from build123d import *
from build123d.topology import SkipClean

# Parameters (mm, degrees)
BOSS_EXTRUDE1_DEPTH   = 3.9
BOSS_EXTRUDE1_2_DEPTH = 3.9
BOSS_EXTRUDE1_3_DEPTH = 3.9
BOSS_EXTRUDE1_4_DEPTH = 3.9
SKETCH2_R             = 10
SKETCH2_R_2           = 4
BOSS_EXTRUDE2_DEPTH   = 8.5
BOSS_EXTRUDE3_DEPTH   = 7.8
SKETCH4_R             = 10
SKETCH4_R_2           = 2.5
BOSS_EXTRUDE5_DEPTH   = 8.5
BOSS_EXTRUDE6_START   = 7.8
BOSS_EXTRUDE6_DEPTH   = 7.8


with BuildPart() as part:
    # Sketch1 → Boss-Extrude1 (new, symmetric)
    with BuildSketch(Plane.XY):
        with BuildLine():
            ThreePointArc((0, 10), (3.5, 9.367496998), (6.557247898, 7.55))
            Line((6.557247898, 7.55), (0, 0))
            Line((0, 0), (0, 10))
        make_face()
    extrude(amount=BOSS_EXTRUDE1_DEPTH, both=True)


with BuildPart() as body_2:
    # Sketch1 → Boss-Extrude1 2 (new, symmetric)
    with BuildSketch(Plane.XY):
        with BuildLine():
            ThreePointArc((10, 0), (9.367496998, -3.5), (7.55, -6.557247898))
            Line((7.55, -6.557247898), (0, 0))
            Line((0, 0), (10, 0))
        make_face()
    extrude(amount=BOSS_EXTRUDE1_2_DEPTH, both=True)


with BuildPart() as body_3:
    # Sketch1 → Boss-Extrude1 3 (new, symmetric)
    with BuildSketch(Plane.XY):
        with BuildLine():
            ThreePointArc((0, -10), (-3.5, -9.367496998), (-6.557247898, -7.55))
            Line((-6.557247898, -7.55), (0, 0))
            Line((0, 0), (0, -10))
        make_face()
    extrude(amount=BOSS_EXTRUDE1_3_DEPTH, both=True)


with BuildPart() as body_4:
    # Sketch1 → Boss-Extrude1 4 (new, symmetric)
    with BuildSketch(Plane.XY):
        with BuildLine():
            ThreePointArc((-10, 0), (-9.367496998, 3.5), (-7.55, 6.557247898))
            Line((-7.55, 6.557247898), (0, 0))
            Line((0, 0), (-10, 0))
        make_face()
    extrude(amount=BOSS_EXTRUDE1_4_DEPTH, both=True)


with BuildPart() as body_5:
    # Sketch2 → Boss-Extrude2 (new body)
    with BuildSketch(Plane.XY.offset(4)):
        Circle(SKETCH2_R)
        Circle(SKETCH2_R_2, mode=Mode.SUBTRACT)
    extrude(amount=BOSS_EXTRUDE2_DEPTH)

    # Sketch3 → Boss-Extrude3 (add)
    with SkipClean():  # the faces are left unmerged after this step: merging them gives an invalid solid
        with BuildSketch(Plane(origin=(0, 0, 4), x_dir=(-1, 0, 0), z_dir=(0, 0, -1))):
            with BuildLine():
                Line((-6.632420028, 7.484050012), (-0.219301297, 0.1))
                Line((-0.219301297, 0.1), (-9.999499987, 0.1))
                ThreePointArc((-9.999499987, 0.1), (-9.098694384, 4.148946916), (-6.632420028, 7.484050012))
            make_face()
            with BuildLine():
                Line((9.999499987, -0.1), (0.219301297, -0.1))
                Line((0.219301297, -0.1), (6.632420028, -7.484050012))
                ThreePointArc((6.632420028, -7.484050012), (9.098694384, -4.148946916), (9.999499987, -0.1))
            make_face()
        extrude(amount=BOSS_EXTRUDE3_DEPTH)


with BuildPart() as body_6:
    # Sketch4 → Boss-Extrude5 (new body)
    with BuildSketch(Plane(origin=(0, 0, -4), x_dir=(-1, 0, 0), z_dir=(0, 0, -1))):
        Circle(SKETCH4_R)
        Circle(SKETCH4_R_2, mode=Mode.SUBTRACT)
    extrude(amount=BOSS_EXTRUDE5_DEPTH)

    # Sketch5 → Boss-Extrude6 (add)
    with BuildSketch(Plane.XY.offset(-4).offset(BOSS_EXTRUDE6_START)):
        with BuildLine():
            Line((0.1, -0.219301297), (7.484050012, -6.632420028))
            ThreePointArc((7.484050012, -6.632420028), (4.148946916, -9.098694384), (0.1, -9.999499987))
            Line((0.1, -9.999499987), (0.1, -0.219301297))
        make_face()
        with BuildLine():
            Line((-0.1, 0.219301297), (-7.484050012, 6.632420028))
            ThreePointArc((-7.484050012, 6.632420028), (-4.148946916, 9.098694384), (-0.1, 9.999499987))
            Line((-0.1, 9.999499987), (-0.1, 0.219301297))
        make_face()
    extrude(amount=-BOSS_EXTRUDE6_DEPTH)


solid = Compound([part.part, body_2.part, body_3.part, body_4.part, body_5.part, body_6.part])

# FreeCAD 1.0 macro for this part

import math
import FreeCAD as App
import Part
import Sketcher

V = App.Vector

doc = App.newDocument("Part")
body = doc.addObject("PartDesign::Body", "Body")

sketch1 = body.newObject("Sketcher::SketchObject", "Sketch")
sketch1.AttachmentSupport = (doc.getObject("XY_Plane"), [""])
sketch1.MapMode = "FlatFace"
sketch1.addGeometry(Part.ArcOfCircle(Part.Circle(V(0, 0, 0), V(0, 0, 1), 10), math.radians(49), math.radians(90)), False)
sketch1.addGeometry(Part.LineSegment(V(0, 10, 0), V(0, 0, 0)), False)
sketch1.addGeometry(Part.LineSegment(V(0, 0, 0), V(7, 8, 0)), False)
sketch1.addConstraint(Sketcher.Constraint("Coincident", 0, 2, 1, 1))
sketch1.addConstraint(Sketcher.Constraint("Coincident", 1, 2, 2, 1))
sketch1.addConstraint(Sketcher.Constraint("Coincident", 2, 2, 0, 1))
sketch1.addConstraint(Sketcher.Constraint("Vertical", 1))
sketch1.addConstraint(Sketcher.Constraint("Coincident", 0, 3, -1, 1))
sketch1.addConstraint(Sketcher.Constraint("Coincident", 1, 2, -1, 1))
sketch1.addConstraint(Sketcher.Constraint("Radius", 0, 10.0))
sketch1.addConstraint(Sketcher.Constraint("DistanceY", -1, 1, 2, 2, 7.55))
pad1 = body.newObject("PartDesign::Pad", "Pad")
pad1.Profile = sketch1
pad1.Length = 7.8
pad1.Midplane = True
body2 = doc.addObject("PartDesign::Body", "Body001")

sketch2 = body2.newObject("Sketcher::SketchObject", "Sketch001")
sketch2.AttachmentSupport = (doc.getObject("XY_Plane001"), [""])
sketch2.MapMode = "FlatFace"
sketch2.addGeometry(Part.ArcOfCircle(Part.Circle(V(0, 0, 0), V(0, 0, 1), 10), math.radians(-41), math.radians(0)), False)
sketch2.addGeometry(Part.LineSegment(V(10, 0, 0), V(0, 0, 0)), False)
sketch2.addGeometry(Part.LineSegment(V(0, 0, 0), V(8, -7, 0)), False)
sketch2.addConstraint(Sketcher.Constraint("Coincident", 0, 2, 1, 1))
sketch2.addConstraint(Sketcher.Constraint("Coincident", 1, 2, 2, 1))
sketch2.addConstraint(Sketcher.Constraint("Coincident", 2, 2, 0, 1))
sketch2.addConstraint(Sketcher.Constraint("Horizontal", 1))
sketch2.addConstraint(Sketcher.Constraint("Coincident", 0, 3, -1, 1))
sketch2.addConstraint(Sketcher.Constraint("Coincident", 1, 2, -1, 1))
sketch2.addConstraint(Sketcher.Constraint("Radius", 0, 10.0))
sketch2.addConstraint(Sketcher.Constraint("DistanceX", -1, 1, 2, 2, 7.55))
pad2 = body2.newObject("PartDesign::Pad", "Pad001")
pad2.Profile = sketch2
pad2.Length = 7.8
pad2.Midplane = True
body3 = doc.addObject("PartDesign::Body", "Body002")

sketch3 = body3.newObject("Sketcher::SketchObject", "Sketch002")
sketch3.AttachmentSupport = (doc.getObject("XY_Plane002"), [""])
sketch3.MapMode = "FlatFace"
sketch3.addGeometry(Part.ArcOfCircle(Part.Circle(V(0, 0, 0), V(0, 0, 1), 10), math.radians(-131), math.radians(-90)), False)
sketch3.addGeometry(Part.LineSegment(V(0, -10, 0), V(0, 0, 0)), False)
sketch3.addGeometry(Part.LineSegment(V(0, 0, 0), V(-7, -8, 0)), False)
sketch3.addConstraint(Sketcher.Constraint("Coincident", 0, 2, 1, 1))
sketch3.addConstraint(Sketcher.Constraint("Coincident", 1, 2, 2, 1))
sketch3.addConstraint(Sketcher.Constraint("Coincident", 2, 2, 0, 1))
sketch3.addConstraint(Sketcher.Constraint("Vertical", 1))
sketch3.addConstraint(Sketcher.Constraint("Coincident", 0, 3, -1, 1))
sketch3.addConstraint(Sketcher.Constraint("Coincident", 1, 2, -1, 1))
sketch3.addConstraint(Sketcher.Constraint("Radius", 0, 10.0))
sketch3.addConstraint(Sketcher.Constraint("DistanceY", 2, 2, -1, 1, 7.55))
pad3 = body3.newObject("PartDesign::Pad", "Pad002")
pad3.Profile = sketch3
pad3.Length = 7.8
pad3.Midplane = True
body4 = doc.addObject("PartDesign::Body", "Body003")

sketch4 = body4.newObject("Sketcher::SketchObject", "Sketch003")
sketch4.AttachmentSupport = (doc.getObject("XY_Plane003"), [""])
sketch4.MapMode = "FlatFace"
sketch4.addGeometry(Part.ArcOfCircle(Part.Circle(V(0, 0, 0), V(0, 0, 1), 10), math.radians(139), math.radians(180)), False)
sketch4.addGeometry(Part.LineSegment(V(-10, 0, 0), V(0, 0, 0)), False)
sketch4.addGeometry(Part.LineSegment(V(0, 0, 0), V(-8, 7, 0)), False)
sketch4.addConstraint(Sketcher.Constraint("Coincident", 0, 2, 1, 1))
sketch4.addConstraint(Sketcher.Constraint("Coincident", 1, 2, 2, 1))
sketch4.addConstraint(Sketcher.Constraint("Coincident", 2, 2, 0, 1))
sketch4.addConstraint(Sketcher.Constraint("Horizontal", 1))
sketch4.addConstraint(Sketcher.Constraint("Coincident", 0, 3, -1, 1))
sketch4.addConstraint(Sketcher.Constraint("Coincident", 1, 2, -1, 1))
sketch4.addConstraint(Sketcher.Constraint("Radius", 0, 10.0))
sketch4.addConstraint(Sketcher.Constraint("DistanceX", 2, 2, -1, 1, 7.55))
pad4 = body4.newObject("PartDesign::Pad", "Pad003")
pad4.Profile = sketch4
pad4.Length = 7.8
pad4.Midplane = True
body5 = doc.addObject("PartDesign::Body", "Body004")

sketch5 = body5.newObject("Sketcher::SketchObject", "Sketch004")
sketch5.AttachmentSupport = (doc.getObject("XY_Plane004"), [""])
sketch5.MapMode = "FlatFace"
sketch5.AttachmentOffset = App.Placement(V(0, 0, 4), App.Rotation())
sketch5.addGeometry(Part.Circle(V(0, 0, 0), V(0, 0, 1), 10), False)
sketch5.addGeometry(Part.Circle(V(0, 0, 0), V(0, 0, 1), 4), False)
sketch5.addConstraint(Sketcher.Constraint("Coincident", 0, 3, -1, 1))
sketch5.addConstraint(Sketcher.Constraint("Coincident", 1, 3, -1, 1))
sketch5.addConstraint(Sketcher.Constraint("Diameter", 0, 20.0))
sketch5.addConstraint(Sketcher.Constraint("Diameter", 1, 8.0))
pad5 = body5.newObject("PartDesign::Pad", "Pad004")
pad5.Profile = sketch5
pad5.Length = 8.5

sketch6 = body5.newObject("Sketcher::SketchObject", "Sketch005")
sketch6.AttachmentSupport = (doc.getObject("XY_Plane004"), [""])
sketch6.MapMode = "FlatFace"
sketch6.AttachmentOffset = App.Placement(V(0, 0, 4), App.Rotation())
sketch6.addGeometry(Part.LineSegment(V(0, 0, 0), V(7, 7, 0)), False)
sketch6.addGeometry(Part.ArcOfCircle(Part.Circle(V(0, 0, 0), V(0, 0, 1), 10), math.radians(1), math.radians(48)), False)
sketch6.addGeometry(Part.LineSegment(V(10, 0, 0), V(0, 0, 0)), False)
sketch6.addGeometry(Part.LineSegment(V(-10, 0, 0), V(0, 0, 0)), False)
sketch6.addGeometry(Part.LineSegment(V(0, 0, 0), V(-7, -7, 0)), False)
sketch6.addGeometry(Part.ArcOfCircle(Part.Circle(V(0, 0, 0), V(0, 0, 1), 10), math.radians(-179), math.radians(-132)), False)
sketch6.addConstraint(Sketcher.Constraint("Coincident", 0, 2, 1, 2))
sketch6.addConstraint(Sketcher.Constraint("Coincident", 1, 1, 2, 1))
sketch6.addConstraint(Sketcher.Constraint("Coincident", 2, 2, 0, 1))
sketch6.addConstraint(Sketcher.Constraint("Coincident", 3, 2, 4, 1))
sketch6.addConstraint(Sketcher.Constraint("Coincident", 4, 2, 5, 2))
sketch6.addConstraint(Sketcher.Constraint("Coincident", 5, 1, 3, 1))
sketch6.addConstraint(Sketcher.Constraint("Horizontal", 2))
sketch6.addConstraint(Sketcher.Constraint("Horizontal", 3))
sketch6.addConstraint(Sketcher.Constraint("Coincident", 1, 3, -1, 1))
sketch6.addConstraint(Sketcher.Constraint("Coincident", 5, 3, -1, 1))
sketch6.addConstraint(Sketcher.Constraint("Equal", 1, 5))
sketch6.addConstraint(Sketcher.Constraint("Symmetric", 2, 2, 3, 2, -1, 1))
sketch6.addConstraint(Sketcher.Constraint("Parallel", 0, 4))
sketch6.addConstraint(Sketcher.Constraint("Radius", 1, 10.0))
sketch6.addConstraint(Sketcher.Constraint("DistanceY", -1, 1, 1, 1, 0.1))
sketch6.addConstraint(Sketcher.Constraint("DistanceX", 2, 2, 2, 1, 9.780199))
sketch6.addConstraint(Sketcher.Constraint("Distance", 0, 9.780199))
pad6 = body5.newObject("PartDesign::Pad", "Pad005")
pad6.Profile = sketch6
pad6.Length = 7.8
pad6.Reversed = True
body6 = doc.addObject("PartDesign::Body", "Body005")

sketch7 = body6.newObject("Sketcher::SketchObject", "Sketch006")
sketch7.AttachmentSupport = (doc.getObject("XY_Plane005"), [""])
sketch7.MapMode = "FlatFace"
sketch7.AttachmentOffset = App.Placement(V(0, 0, -4), App.Rotation())
sketch7.addGeometry(Part.Circle(V(0, 0, 0), V(0, 0, 1), 10), False)
sketch7.addGeometry(Part.Circle(V(0, 0, 0), V(0, 0, 1), 2.5), False)
sketch7.addConstraint(Sketcher.Constraint("Coincident", 0, 3, -1, 1))
sketch7.addConstraint(Sketcher.Constraint("Coincident", 1, 3, -1, 1))
sketch7.addConstraint(Sketcher.Constraint("Diameter", 0, 20.0))
sketch7.addConstraint(Sketcher.Constraint("Diameter", 1, 5.0))
pad7 = body6.newObject("PartDesign::Pad", "Pad006")
pad7.Profile = sketch7
pad7.Length = 8.5
pad7.Reversed = True

sketch8 = body6.newObject("Sketcher::SketchObject", "Sketch007")
sketch8.AttachmentSupport = (doc.getObject("XY_Plane005"), [""])
sketch8.MapMode = "FlatFace"
sketch8.AttachmentOffset = App.Placement(V(0, 0, 3.8), App.Rotation())
sketch8.addGeometry(Part.LineSegment(V(7, -7, 0), V(0, 0, 0)), False)
sketch8.addGeometry(Part.LineSegment(V(0, 0, 0), V(0, -10, 0)), False)
sketch8.addGeometry(Part.ArcOfCircle(Part.Circle(V(0, 0, 0), V(0, 0, 1), 10), math.radians(-89), math.radians(-42)), False)
sketch8.addGeometry(Part.LineSegment(V(-7, 7, 0), V(0, 0, 0)), False)
sketch8.addGeometry(Part.LineSegment(V(0, 0, 0), V(0, 10, 0)), False)
sketch8.addGeometry(Part.ArcOfCircle(Part.Circle(V(0, 0, 0), V(0, 0, 1), 10), math.radians(91), math.radians(138)), False)
sketch8.addConstraint(Sketcher.Constraint("Coincident", 0, 2, 1, 1))
sketch8.addConstraint(Sketcher.Constraint("Coincident", 1, 2, 2, 1))
sketch8.addConstraint(Sketcher.Constraint("Coincident", 2, 2, 0, 1))
sketch8.addConstraint(Sketcher.Constraint("Coincident", 3, 2, 4, 1))
sketch8.addConstraint(Sketcher.Constraint("Coincident", 4, 2, 5, 1))
sketch8.addConstraint(Sketcher.Constraint("Coincident", 5, 2, 3, 1))
sketch8.addConstraint(Sketcher.Constraint("Vertical", 1))
sketch8.addConstraint(Sketcher.Constraint("Vertical", 4))
sketch8.addConstraint(Sketcher.Constraint("Coincident", 2, 3, -1, 1))
sketch8.addConstraint(Sketcher.Constraint("Coincident", 5, 3, -1, 1))
sketch8.addConstraint(Sketcher.Constraint("Equal", 2, 5))
sketch8.addConstraint(Sketcher.Constraint("Symmetric", 0, 2, 3, 2, -1, 1))
sketch8.addConstraint(Sketcher.Constraint("Parallel", 0, 3))
sketch8.addConstraint(Sketcher.Constraint("Radius", 2, 10.0))
sketch8.addConstraint(Sketcher.Constraint("DistanceX", -1, 1, 0, 2, 0.1))
sketch8.addConstraint(Sketcher.Constraint("DistanceY", 1, 2, 1, 1, 9.780199))
sketch8.addConstraint(Sketcher.Constraint("Distance", 0, 9.780199))
pad8 = body6.newObject("PartDesign::Pad", "Pad007")
pad8.Profile = sketch8
pad8.Length = 7.8
pad8.Reversed = True

doc.recompute()
